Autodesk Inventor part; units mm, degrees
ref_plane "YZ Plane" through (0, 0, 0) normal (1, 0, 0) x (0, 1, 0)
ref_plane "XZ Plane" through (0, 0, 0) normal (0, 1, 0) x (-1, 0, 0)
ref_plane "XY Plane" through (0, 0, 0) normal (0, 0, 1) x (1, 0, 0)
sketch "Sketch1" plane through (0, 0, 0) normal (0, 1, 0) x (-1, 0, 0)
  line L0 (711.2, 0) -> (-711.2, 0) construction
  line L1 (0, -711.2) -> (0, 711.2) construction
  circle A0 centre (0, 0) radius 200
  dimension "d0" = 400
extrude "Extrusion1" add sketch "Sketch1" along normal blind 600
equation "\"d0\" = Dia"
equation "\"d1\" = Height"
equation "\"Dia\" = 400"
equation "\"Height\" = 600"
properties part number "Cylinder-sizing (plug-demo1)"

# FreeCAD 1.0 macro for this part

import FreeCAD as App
import Part
import Sketcher

V = App.Vector

doc = App.newDocument("Part")
body = doc.addObject("PartDesign::Body", "Body")

# Sketch on XZ plane
sketch1 = body.newObject("Sketcher::SketchObject", "Sketch")
sketch1.AttachmentSupport = (doc.getObject("XZ_Plane"), [""])
sketch1.MapMode = "FlatFace"
sketch1.addGeometry(Part.Circle(V(0, 0, 0), V(0, 0, 1), 200), False)
sketch1.addConstraint(Sketcher.Constraint("Coincident", 0, 3, -1, 1))
sketch1.addConstraint(Sketcher.Constraint("Diameter", 0, 400.0))
pad1 = body.newObject("PartDesign::Pad", "Pad")
pad1.Profile = sketch1
pad1.Length = 600
pad1.Reversed = True

doc.recompute()
